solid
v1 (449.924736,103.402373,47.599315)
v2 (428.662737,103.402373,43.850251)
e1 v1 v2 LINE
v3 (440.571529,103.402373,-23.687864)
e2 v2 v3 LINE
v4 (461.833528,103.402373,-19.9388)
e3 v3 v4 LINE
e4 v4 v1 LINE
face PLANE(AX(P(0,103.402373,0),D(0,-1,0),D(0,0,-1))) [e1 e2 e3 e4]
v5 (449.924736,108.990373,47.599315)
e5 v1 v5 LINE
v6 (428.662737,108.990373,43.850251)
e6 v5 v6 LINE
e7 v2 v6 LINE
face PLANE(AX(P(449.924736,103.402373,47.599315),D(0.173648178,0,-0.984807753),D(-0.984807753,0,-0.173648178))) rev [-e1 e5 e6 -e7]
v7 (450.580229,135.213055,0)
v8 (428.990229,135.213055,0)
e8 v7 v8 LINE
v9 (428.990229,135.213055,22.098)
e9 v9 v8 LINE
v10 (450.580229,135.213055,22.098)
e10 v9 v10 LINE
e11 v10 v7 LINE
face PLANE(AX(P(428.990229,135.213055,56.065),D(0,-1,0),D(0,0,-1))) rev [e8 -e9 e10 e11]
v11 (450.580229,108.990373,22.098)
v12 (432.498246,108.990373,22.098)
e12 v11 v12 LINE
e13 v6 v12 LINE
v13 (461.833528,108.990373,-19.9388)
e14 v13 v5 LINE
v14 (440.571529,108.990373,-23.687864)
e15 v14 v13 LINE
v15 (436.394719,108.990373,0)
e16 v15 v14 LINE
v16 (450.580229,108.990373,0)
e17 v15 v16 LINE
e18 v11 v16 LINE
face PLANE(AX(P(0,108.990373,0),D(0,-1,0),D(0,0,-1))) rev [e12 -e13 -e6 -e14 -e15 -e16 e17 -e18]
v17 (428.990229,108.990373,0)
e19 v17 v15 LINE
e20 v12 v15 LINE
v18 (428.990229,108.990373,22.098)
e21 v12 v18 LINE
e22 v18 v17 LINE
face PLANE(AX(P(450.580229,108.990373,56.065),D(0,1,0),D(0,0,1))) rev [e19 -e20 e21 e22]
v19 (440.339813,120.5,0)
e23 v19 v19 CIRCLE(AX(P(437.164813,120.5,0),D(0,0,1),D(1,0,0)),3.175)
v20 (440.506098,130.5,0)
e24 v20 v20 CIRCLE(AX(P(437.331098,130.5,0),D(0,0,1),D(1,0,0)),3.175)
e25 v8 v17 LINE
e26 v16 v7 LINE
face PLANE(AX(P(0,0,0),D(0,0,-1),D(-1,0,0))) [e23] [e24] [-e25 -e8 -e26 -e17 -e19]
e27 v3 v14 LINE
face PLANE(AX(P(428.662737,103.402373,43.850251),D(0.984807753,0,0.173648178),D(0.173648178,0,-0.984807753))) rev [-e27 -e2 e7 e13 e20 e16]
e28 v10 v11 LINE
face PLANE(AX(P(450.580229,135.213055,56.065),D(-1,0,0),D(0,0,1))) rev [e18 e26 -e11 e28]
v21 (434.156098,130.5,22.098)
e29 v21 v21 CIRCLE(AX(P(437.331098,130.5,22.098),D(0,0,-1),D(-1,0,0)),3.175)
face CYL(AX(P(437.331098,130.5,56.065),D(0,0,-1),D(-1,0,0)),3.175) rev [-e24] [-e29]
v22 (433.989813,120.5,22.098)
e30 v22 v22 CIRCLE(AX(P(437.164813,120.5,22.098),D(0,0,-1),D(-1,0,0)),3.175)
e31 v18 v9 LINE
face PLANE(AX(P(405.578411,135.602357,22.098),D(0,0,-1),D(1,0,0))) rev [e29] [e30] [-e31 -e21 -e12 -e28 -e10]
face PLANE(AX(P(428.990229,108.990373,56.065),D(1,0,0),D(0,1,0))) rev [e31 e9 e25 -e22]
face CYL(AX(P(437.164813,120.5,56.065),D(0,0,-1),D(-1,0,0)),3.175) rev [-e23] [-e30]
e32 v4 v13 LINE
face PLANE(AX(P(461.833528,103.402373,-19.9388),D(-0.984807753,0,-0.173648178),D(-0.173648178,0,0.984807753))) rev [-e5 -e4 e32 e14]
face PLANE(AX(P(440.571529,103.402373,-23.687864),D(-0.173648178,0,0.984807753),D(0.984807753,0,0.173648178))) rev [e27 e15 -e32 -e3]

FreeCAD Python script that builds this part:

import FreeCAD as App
import Part
import Sketcher
Q = App.Units.Quantity


def add_polygon(sketch, points):
    """Adds a closed chain of lines whose ends are joined by coincident constraints."""
    first, n = sketch.GeometryCount, len(points)
    for a, b in zip(points, points[1:] + points[:1]):
        sketch.addGeometry(Part.LineSegment(App.Vector(*a, 0), App.Vector(*b, 0)), False)
    for i in range(n):
        sketch.addConstraint(Sketcher.Constraint("Coincident", first + i, 2, first + (i + 1) % n, 1))

doc = App.newDocument("Part")
body = doc.addObject("PartDesign::Body", "Body")

sketch1 = body.newObject("Sketcher::SketchObject", "Sketch")
sketch1.AttachmentSupport = (doc.getObject("XY_Plane"), [""])
sketch1.MapMode = "FlatFace"
add_polygon(sketch1, [(428.990229, 135.213055), (428.990229, 108.990373), (450.580229, 108.990373), (450.580229, 135.213055)])
sketch1.addGeometry(Part.Circle(App.Vector(437.164813, 120.5, 0), App.Vector(0, 0, 1), 3.175), False)
sketch1.addGeometry(Part.Circle(App.Vector(437.331098, 130.5, 0), App.Vector(0, 0, 1), 3.175), False)
sketch1.addConstraint([
    Sketcher.Constraint("Vertical", 0),
    Sketcher.Constraint("Horizontal", 1),
    Sketcher.Constraint("Vertical", 2),
    Sketcher.Constraint("Horizontal", 3),
    Sketcher.Constraint("Equal", 4, 5),
    Sketcher.Constraint("Diameter", 4, Q("0.25 in")),
    Sketcher.Constraint("DistanceX", 1, 1, 1, 2, Q("0.85 in")),
    Sketcher.Constraint("DistanceY", 0, 2, 0, 1, Q("26.222681 mm")),
    Sketcher.Constraint("DistanceY", -1, 1, 4, 3, Q("120.5 mm")),
    Sketcher.Constraint("DistanceX", -1, 1, 5, 3, Q("437.331098 mm")),
    Sketcher.Constraint("DistanceY", -1, 1, 5, 3, Q("130.5 mm")),
    Sketcher.Constraint("DistanceX", -1, 1, 0, 2, Q("428.990229 mm")),
    Sketcher.Constraint("DistanceX", -1, 1, 4, 3, Q("437.164813 mm")),
    Sketcher.Constraint("DistanceY", -1, 1, 0, 2, Q("108.990373 mm")),
])
pad1 = body.newObject("PartDesign::Pad", "Pad")
pad1.Profile = sketch1
pad1.Length = Q("0.87 in")

sketch2 = body.newObject("Sketcher::SketchObject", "Sketch001")
sketch2.AttachmentSupport = (doc.getObject("XZ_Plane"), [""])
sketch2.MapMode = "FlatFace"
sketch2.AttachmentOffset = App.Placement(App.Vector(0, 0, -108.990373), App.Rotation())
add_polygon(sketch2, [(440.571529, -23.687864), (428.662737, 43.850251), (449.924736, 47.599315), (461.833528, -19.9388)])
sketch2.addConstraint([
    Sketcher.Constraint("Perpendicular", 0, 1),
    Sketcher.Constraint("Perpendicular", 1, 2),
    Sketcher.Constraint("Perpendicular", 2, 3),
    Sketcher.Constraint("Angle", 0, Q("100 deg")),
    Sketcher.Constraint("Distance", 0, Q("2.7 in")),
    Sketcher.Constraint("Distance", 1, Q("0.85 in")),
    Sketcher.Constraint("DistanceY", 2, 2, -1, 1, Q("19.9388 mm")),
    Sketcher.Constraint("DistanceX", -1, 1, 2, 2, Q("461.833528 mm")),
])
pad2 = body.newObject("PartDesign::Pad", "Pad001")
pad2.Profile = sketch2
pad2.Length = Q("0.22 in")

doc.recompute()
